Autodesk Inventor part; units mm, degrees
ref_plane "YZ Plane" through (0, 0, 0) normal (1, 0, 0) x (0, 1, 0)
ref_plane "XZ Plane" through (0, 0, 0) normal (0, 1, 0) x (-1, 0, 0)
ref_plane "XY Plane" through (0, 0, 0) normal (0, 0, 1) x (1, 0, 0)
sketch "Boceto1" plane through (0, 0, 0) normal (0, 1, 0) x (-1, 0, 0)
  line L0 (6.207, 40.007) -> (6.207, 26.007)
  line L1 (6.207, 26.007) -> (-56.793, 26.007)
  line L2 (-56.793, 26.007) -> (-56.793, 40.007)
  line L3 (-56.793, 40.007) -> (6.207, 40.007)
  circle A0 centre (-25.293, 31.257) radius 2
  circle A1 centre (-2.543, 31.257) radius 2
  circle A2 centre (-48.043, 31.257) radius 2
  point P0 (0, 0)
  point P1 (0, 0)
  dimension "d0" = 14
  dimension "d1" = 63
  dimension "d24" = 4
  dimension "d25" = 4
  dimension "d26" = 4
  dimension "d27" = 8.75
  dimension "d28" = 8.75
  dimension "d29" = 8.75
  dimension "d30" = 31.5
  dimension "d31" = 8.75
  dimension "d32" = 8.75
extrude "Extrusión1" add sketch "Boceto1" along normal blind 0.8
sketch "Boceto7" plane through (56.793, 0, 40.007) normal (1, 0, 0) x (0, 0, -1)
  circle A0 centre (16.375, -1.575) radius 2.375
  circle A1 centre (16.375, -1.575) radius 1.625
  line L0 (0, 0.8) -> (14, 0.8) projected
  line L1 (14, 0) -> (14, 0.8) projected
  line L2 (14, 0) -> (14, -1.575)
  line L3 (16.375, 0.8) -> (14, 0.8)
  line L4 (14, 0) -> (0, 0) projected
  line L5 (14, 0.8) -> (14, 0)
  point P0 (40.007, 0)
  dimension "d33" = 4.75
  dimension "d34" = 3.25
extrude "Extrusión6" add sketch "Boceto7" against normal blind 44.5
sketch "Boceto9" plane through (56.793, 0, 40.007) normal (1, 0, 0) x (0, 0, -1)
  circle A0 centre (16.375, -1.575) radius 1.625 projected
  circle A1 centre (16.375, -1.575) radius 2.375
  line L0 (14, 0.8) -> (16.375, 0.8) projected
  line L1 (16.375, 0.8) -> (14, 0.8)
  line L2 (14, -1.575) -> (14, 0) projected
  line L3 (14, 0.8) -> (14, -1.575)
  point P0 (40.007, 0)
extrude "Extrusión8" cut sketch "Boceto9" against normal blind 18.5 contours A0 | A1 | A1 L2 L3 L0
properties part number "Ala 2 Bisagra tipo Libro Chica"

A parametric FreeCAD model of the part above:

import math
import FreeCAD as App
import Part
import Sketcher


def add_polygon(sketch, points):
    """Adds a closed chain of lines whose ends are joined by coincident constraints."""
    first, n = sketch.GeometryCount, len(points)
    for a, b in zip(points, points[1:] + points[:1]):
        sketch.addGeometry(Part.LineSegment(App.Vector(*a, 0), App.Vector(*b, 0)), False)
    for i in range(n):
        sketch.addConstraint(Sketcher.Constraint("Coincident", first + i, 2, first + (i + 1) % n, 1))

doc = App.newDocument("Part")
body = doc.addObject("PartDesign::Body", "Body")

# Sketch on XZ plane
sketch1 = body.newObject("Sketcher::SketchObject", "Sketch")
sketch1.AttachmentSupport = (doc.getObject("XZ_Plane"), [""])
sketch1.MapMode = "FlatFace"
add_polygon(sketch1, [(-6.207, 26.007), (-6.207, 40.007), (56.793, 40.007), (56.793, 26.007)])  # lines 0-3
sketch1.addGeometry(Part.Circle(App.Vector(48.043, 31.257, 0), App.Vector(0, 0, 1), 2), False)  # 4
sketch1.addGeometry(Part.Circle(App.Vector(25.293, 31.257, 0), App.Vector(0, 0, 1), 2), False)  # 5
sketch1.addGeometry(Part.Circle(App.Vector(2.543, 31.257, 0), App.Vector(0, 0, 1), 2), False)  # 6
sketch1.addConstraint(Sketcher.Constraint("Vertical", 0))
sketch1.addConstraint(Sketcher.Constraint("Horizontal", 1))
sketch1.addConstraint(Sketcher.Constraint("Vertical", 2))
sketch1.addConstraint(Sketcher.Constraint("Horizontal", 3))
sketch1.addConstraint(Sketcher.Constraint("Equal", 4, 5))
sketch1.addConstraint(Sketcher.Constraint("Equal", 5, 6))
sketch1.addConstraint(Sketcher.Constraint("Horizontal", 4, 3, 5, 3))
sketch1.addConstraint(Sketcher.Constraint("Horizontal", 5, 3, 6, 3))
sketch1.addConstraint(Sketcher.Constraint("Diameter", 4, 4.0))
sketch1.addConstraint(Sketcher.Constraint("DistanceX", 1, 1, 1, 2, 63.0))
sketch1.addConstraint(Sketcher.Constraint("DistanceY", 0, 1, 0, 2, 14.0))
sketch1.addConstraint(Sketcher.Constraint("DistanceX", 0, 2, 5, 3, 31.5))
sketch1.addConstraint(Sketcher.Constraint("DistanceX", 0, 2, 6, 3, 8.75))
sketch1.addConstraint(Sketcher.Constraint("DistanceY", 6, 3, 0, 2, 8.75))
sketch1.addConstraint(Sketcher.Constraint("DistanceX", 4, 3, 1, 2, 8.75))
sketch1.addConstraint(Sketcher.Constraint("DistanceX", -1, 1, 4, 3, 48.043))
sketch1.addConstraint(Sketcher.Constraint("DistanceY", -1, 1, 4, 3, 31.257))
pad1 = body.newObject("PartDesign::Pad", "Pad")
pad1.Profile = sketch1
pad1.Length = 0.8
pad1.Reversed = True

# Sketch on YZ plane
sketch2 = body.newObject("Sketcher::SketchObject", "Sketch001")
sketch2.AttachmentSupport = (doc.getObject("YZ_Plane"), [""])
sketch2.MapMode = "FlatFace"
sketch2.AttachmentOffset = App.Placement(App.Vector(0, 0, 56.793), App.Rotation())
sketch2.addGeometry(Part.ArcOfCircle(Part.Circle(App.Vector(-1.575, 23.632, 0), App.Vector(0, 0, 1), 2.375), math.radians(90), math.radians(360)), False)
sketch2.addGeometry(Part.LineSegment(App.Vector(0.8, 23.632, 0), App.Vector(0.8, 26.007, 0)), False)
sketch2.addGeometry(Part.LineSegment(App.Vector(0.8, 26.007, 0), App.Vector(-1.575, 26.007, 0)), False)
sketch2.addGeometry(Part.Circle(App.Vector(-1.575, 23.632, 0), App.Vector(0, 0, 1), 1.625), False)
sketch2.addConstraint(Sketcher.Constraint("Tangent", 0, 2, 1, 1))
sketch2.addConstraint(Sketcher.Constraint("Coincident", 1, 2, 2, 1))
sketch2.addConstraint(Sketcher.Constraint("Tangent", 2, 2, 0, 1))
sketch2.addConstraint(Sketcher.Constraint("Vertical", 1))
sketch2.addConstraint(Sketcher.Constraint("Horizontal", 2))
sketch2.addConstraint(Sketcher.Constraint("Coincident", 3, 3, 0, 3))
sketch2.addConstraint(Sketcher.Constraint("Diameter", 3, 3.25))
sketch2.addConstraint(Sketcher.Constraint("Radius", 0, 2.375))
sketch2.addConstraint(Sketcher.Constraint("DistanceX", -1, 1, 0, 2, 0.8))
sketch2.addConstraint(Sketcher.Constraint("DistanceY", -1, 1, 0, 3, 23.632))
pad2 = body.newObject("PartDesign::Pad", "Pad001")
pad2.Profile = sketch2
pad2.Length = 44.5
pad2.Reversed = True

# Sketch on YZ plane
sketch3 = body.newObject("Sketcher::SketchObject", "Sketch002")
sketch3.AttachmentSupport = (doc.getObject("YZ_Plane"), [""])
sketch3.MapMode = "FlatFace"
sketch3.AttachmentOffset = App.Placement(App.Vector(0, 0, 56.793), App.Rotation())
sketch3.addGeometry(Part.ArcOfCircle(Part.Circle(App.Vector(-1.575, 23.632, 0), App.Vector(0, 0, 1), 2.375), math.radians(90), math.radians(360)), False)
sketch3.addGeometry(Part.LineSegment(App.Vector(0.8, 23.632, 0), App.Vector(0.8, 26.007, 0)), False)
sketch3.addGeometry(Part.LineSegment(App.Vector(0.8, 26.007, 0), App.Vector(-1.575, 26.007, 0)), False)
sketch3.addConstraint(Sketcher.Constraint("Tangent", 0, 2, 1, 1))
sketch3.addConstraint(Sketcher.Constraint("Coincident", 1, 2, 2, 1))
sketch3.addConstraint(Sketcher.Constraint("Tangent", 2, 2, 0, 1))
sketch3.addConstraint(Sketcher.Constraint("Vertical", 1))
sketch3.addConstraint(Sketcher.Constraint("Horizontal", 2))
sketch3.addConstraint(Sketcher.Constraint("Radius", 0, 2.375))
sketch3.addConstraint(Sketcher.Constraint("DistanceX", -1, 1, 0, 2, 0.8))
sketch3.addConstraint(Sketcher.Constraint("DistanceY", -1, 1, 0, 3, 23.632))
pocket1 = body.newObject("PartDesign::Pocket", "Pocket")
pocket1.Profile = sketch3
pocket1.Length = 18.5

doc.recompute()
